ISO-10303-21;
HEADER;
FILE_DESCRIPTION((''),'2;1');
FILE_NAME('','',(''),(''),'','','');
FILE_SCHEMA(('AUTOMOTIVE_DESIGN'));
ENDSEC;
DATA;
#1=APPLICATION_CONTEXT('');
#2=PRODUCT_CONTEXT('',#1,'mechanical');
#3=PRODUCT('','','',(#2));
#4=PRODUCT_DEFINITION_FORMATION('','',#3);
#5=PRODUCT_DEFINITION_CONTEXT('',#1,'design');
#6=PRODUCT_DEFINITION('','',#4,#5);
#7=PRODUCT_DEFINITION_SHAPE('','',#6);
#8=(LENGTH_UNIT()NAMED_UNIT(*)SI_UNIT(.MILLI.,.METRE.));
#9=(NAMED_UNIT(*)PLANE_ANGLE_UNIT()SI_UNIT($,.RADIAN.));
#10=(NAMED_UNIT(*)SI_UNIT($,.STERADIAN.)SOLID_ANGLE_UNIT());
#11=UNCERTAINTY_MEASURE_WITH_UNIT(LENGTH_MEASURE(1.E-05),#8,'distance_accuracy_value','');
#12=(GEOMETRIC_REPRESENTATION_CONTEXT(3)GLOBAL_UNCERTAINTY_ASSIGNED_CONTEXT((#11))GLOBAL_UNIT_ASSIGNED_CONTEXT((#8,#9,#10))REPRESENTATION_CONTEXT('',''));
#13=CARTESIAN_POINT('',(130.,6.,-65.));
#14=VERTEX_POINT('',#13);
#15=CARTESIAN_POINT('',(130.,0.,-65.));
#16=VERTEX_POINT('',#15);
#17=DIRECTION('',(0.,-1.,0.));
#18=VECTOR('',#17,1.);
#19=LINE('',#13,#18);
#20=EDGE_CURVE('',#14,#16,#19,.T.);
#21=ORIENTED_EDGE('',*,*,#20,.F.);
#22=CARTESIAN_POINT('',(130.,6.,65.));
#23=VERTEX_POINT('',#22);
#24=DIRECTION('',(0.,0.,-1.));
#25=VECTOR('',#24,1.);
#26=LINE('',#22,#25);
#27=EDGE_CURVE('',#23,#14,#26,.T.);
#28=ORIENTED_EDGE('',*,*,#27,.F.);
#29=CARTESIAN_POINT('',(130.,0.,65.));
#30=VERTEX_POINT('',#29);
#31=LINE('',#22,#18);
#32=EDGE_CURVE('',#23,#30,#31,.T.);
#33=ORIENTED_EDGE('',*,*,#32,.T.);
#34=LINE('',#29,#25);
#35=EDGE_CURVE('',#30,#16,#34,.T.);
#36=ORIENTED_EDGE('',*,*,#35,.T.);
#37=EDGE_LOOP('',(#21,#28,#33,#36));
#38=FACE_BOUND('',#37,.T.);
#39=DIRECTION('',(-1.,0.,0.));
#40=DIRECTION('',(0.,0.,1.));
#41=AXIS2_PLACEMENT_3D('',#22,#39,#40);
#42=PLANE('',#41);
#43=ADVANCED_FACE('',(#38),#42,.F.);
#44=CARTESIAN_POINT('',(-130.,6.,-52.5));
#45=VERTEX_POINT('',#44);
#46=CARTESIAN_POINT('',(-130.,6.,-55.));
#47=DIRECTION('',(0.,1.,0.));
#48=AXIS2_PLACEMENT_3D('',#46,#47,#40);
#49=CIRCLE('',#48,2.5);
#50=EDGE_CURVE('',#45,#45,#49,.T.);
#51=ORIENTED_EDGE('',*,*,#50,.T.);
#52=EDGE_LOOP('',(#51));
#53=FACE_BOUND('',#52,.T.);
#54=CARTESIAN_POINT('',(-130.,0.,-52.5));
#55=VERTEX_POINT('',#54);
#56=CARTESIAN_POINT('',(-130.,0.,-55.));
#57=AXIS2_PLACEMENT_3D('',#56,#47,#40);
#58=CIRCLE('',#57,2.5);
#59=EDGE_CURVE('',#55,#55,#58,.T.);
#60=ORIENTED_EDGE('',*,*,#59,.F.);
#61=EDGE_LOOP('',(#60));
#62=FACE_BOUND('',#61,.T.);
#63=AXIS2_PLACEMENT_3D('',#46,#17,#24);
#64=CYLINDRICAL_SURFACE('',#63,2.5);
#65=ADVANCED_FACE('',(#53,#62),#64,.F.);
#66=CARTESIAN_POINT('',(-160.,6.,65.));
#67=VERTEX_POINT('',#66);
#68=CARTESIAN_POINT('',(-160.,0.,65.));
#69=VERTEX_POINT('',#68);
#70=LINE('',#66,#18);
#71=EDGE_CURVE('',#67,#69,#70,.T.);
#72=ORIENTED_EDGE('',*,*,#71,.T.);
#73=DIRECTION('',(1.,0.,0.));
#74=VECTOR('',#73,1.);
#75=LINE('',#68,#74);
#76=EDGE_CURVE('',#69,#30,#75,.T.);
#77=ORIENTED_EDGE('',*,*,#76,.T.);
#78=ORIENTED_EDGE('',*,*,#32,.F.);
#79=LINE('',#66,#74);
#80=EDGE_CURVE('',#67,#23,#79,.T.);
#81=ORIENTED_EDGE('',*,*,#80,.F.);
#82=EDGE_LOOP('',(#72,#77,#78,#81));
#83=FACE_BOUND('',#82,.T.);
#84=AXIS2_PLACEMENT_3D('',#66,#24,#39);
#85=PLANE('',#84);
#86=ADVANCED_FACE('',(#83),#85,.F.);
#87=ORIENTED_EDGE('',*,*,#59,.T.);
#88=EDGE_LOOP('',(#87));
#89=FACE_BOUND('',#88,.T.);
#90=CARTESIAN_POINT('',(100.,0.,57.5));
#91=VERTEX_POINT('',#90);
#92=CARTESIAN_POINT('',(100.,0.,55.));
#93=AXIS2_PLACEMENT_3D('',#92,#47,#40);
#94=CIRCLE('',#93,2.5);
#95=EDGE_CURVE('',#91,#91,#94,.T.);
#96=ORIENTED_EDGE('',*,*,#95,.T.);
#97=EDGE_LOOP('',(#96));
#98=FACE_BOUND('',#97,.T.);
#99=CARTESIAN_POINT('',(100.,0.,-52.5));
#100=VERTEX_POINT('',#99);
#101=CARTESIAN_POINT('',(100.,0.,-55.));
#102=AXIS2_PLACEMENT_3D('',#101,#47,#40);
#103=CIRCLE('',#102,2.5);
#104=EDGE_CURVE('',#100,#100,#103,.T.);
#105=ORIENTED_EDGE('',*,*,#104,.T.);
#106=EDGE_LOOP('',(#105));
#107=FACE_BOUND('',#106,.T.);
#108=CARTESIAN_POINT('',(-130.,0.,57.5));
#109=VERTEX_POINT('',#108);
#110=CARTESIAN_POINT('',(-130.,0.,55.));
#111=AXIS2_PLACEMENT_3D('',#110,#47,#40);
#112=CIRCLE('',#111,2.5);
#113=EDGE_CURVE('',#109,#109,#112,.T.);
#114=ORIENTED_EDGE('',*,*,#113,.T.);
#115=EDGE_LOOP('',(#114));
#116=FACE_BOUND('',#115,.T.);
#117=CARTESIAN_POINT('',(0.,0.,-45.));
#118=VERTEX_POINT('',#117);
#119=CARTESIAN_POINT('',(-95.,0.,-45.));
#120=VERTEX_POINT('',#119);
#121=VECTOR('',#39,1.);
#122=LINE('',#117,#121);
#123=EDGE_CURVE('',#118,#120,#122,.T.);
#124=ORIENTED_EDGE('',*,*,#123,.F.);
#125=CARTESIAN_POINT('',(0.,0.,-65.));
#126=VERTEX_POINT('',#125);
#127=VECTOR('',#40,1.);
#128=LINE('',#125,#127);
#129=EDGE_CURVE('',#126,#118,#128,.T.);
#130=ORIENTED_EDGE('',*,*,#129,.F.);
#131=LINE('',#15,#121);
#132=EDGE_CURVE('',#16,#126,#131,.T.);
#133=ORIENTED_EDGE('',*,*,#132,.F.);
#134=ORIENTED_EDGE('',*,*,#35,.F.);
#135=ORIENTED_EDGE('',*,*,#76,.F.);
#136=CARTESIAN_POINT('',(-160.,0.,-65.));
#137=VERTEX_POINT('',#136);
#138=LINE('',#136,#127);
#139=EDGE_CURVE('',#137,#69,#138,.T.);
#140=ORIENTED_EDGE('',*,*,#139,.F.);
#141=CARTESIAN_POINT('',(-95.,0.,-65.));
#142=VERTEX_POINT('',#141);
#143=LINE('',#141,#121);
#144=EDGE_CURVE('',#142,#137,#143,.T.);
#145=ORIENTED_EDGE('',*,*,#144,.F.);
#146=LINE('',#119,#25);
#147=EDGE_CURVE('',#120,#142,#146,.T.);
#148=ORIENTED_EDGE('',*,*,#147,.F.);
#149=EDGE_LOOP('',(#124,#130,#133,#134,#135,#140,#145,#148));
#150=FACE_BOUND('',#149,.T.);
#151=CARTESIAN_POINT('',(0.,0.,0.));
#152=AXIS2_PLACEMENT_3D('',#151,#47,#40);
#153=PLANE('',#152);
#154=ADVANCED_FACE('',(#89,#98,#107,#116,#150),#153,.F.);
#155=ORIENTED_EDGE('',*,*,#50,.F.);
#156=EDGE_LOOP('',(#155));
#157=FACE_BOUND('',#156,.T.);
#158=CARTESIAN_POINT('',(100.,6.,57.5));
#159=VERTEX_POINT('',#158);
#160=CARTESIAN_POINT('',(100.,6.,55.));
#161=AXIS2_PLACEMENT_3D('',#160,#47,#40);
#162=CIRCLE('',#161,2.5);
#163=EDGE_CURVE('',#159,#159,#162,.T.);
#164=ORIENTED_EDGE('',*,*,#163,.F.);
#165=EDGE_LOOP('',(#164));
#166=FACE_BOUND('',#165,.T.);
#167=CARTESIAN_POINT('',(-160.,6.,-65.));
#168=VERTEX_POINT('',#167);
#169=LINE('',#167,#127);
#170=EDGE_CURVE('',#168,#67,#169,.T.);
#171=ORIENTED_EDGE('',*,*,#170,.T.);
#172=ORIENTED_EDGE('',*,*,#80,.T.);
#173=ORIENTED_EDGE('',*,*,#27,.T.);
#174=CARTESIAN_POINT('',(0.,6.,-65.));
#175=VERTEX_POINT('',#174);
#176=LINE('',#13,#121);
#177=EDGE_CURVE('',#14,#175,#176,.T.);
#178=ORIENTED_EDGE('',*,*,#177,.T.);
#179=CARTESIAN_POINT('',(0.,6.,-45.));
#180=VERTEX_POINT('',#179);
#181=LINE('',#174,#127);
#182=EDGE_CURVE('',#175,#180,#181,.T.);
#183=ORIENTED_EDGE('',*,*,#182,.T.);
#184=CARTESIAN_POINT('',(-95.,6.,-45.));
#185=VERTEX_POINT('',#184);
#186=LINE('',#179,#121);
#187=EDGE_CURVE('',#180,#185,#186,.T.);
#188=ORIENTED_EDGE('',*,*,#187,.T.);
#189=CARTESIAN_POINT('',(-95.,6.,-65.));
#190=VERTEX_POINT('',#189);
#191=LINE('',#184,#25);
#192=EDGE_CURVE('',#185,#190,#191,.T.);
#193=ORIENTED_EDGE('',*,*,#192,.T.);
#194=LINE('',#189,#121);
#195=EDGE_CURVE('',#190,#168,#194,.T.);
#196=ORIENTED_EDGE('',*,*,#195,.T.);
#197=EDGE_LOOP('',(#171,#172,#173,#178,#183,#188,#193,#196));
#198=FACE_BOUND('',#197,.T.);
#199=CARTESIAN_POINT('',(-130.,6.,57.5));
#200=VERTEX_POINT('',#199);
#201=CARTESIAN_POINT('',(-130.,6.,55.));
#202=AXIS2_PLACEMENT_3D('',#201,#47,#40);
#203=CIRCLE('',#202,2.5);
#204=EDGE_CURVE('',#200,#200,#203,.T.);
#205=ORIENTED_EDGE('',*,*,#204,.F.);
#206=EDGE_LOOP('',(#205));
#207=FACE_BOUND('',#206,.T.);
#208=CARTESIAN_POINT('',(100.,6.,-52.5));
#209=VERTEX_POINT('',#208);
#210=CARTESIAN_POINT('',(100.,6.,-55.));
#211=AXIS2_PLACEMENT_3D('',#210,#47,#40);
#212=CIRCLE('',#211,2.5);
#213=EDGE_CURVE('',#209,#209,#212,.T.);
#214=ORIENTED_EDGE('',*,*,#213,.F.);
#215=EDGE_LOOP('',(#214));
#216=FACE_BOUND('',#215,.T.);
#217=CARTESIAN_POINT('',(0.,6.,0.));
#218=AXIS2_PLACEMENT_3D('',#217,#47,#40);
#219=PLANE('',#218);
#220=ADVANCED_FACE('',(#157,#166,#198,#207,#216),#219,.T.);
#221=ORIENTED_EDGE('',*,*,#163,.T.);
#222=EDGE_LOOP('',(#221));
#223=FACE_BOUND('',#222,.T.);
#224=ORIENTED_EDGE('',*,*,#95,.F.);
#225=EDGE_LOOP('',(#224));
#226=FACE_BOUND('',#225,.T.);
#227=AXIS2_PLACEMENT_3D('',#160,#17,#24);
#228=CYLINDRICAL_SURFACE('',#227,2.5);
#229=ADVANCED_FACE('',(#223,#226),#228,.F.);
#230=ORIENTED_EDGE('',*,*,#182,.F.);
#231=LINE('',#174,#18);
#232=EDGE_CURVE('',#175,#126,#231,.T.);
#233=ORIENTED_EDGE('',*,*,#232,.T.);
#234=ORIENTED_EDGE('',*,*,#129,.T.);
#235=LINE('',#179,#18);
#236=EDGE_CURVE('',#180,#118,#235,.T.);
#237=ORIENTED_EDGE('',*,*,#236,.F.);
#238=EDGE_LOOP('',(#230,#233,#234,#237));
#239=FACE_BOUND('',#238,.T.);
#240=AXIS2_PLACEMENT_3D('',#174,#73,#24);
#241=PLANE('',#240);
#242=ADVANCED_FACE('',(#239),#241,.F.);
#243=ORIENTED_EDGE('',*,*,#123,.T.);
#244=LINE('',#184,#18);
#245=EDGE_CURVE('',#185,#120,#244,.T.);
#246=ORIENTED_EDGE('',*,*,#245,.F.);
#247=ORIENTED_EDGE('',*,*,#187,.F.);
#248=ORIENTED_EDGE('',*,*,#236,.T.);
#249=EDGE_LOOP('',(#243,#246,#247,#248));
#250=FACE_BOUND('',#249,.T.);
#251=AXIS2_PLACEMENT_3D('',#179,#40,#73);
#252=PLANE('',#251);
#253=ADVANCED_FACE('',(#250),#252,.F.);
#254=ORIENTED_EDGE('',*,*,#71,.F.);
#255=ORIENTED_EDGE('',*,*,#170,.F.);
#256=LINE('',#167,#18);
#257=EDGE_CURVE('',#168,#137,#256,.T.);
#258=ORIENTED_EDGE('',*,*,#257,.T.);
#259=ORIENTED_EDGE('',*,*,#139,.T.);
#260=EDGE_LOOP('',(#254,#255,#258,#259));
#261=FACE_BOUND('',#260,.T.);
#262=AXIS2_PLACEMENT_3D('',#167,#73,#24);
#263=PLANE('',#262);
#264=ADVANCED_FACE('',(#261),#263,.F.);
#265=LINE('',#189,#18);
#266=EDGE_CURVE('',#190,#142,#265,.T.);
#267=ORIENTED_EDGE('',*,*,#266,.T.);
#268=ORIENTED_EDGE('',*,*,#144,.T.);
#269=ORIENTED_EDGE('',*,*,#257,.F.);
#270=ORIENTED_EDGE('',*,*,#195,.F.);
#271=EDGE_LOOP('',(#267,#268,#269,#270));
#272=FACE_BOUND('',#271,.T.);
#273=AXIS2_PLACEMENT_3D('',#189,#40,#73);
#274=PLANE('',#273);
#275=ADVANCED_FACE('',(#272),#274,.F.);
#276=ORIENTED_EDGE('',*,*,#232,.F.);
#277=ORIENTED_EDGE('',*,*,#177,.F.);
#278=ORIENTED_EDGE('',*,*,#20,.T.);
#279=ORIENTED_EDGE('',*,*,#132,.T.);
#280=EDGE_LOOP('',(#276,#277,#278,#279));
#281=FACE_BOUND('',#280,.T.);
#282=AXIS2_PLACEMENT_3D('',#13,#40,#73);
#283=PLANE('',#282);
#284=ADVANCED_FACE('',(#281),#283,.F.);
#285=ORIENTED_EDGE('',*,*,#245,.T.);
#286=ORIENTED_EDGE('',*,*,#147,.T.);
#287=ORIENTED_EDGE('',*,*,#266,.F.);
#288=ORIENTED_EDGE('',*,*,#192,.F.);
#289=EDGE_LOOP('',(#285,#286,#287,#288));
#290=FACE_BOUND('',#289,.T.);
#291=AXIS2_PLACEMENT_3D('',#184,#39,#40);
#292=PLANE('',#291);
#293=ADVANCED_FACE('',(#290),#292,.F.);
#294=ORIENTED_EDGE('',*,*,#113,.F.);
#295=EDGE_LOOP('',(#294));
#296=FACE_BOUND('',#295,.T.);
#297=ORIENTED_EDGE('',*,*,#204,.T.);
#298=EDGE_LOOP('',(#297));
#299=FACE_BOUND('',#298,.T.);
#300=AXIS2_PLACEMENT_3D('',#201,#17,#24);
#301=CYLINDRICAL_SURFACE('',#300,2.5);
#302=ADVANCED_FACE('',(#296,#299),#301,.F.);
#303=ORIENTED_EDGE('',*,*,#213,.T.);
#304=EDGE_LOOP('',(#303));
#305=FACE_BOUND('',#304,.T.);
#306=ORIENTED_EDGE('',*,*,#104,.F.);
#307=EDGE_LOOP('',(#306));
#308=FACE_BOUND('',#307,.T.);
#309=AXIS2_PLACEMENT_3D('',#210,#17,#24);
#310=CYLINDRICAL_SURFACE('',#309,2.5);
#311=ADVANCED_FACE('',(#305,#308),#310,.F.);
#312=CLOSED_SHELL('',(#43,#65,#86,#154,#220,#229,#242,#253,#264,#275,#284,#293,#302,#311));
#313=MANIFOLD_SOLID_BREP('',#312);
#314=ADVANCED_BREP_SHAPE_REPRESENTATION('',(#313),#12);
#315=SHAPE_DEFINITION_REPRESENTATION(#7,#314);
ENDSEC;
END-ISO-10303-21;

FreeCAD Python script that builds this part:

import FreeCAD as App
import Part
import Sketcher

V = App.Vector


def add_polygon(sketch, points):
    """Adds a closed chain of lines whose ends are joined by coincident constraints."""
    first, n = sketch.GeometryCount, len(points)
    for a, b in zip(points, points[1:] + points[:1]):
        sketch.addGeometry(Part.LineSegment(App.Vector(*a, 0), App.Vector(*b, 0)), False)
    for i in range(n):
        sketch.addConstraint(Sketcher.Constraint("Coincident", first + i, 2, first + (i + 1) % n, 1))

doc = App.newDocument("Part")
params = doc.addObject("Spreadsheet::Sheet", "Params")
for row, (alias, value) in enumerate([
    ("sketch1_diameter", "5 mm"),
    ("sketch1_width", "290 mm"),
    ("sketch1_width2", "130 mm"),
    ("sketch1_width3", "95 mm"),
    ("sketch1_height", "20 mm"),
    ("pad1_length", "6 mm"),
], start=1):
    params.set(f"A{row}", alias)
    params.set(f"B{row}", "=" + value)
    params.setAlias(f"B{row}", alias)

body = doc.addObject("PartDesign::Body", "Body")

# Sketch on XZ plane
sketch1 = body.newObject("Sketcher::SketchObject", "Sketch")
sketch1.AttachmentSupport = (doc.getObject("XZ_Plane"), [""])
sketch1.MapMode = "FlatFace"
add_polygon(sketch1, [(-160, 65), (130, 65), (130, -65), (0, -65), (0, -45), (-95, -45), (-95, -65), (-160, -65)])  # lines 0-7
sketch1.addGeometry(Part.Circle(V(-130, 55, 0), V(0, 0, 1), 2.5), False)  # 8
sketch1.addGeometry(Part.Circle(V(100, 55, 0), V(0, 0, 1), 2.5), False)  # 9
sketch1.addGeometry(Part.Circle(V(-130, -55, 0), V(0, 0, 1), 2.5), False)  # 10
sketch1.addGeometry(Part.Circle(V(100, -55, 0), V(0, 0, 1), 2.5), False)  # 11
sketch1.addConstraint([
    Sketcher.Constraint("Horizontal", 0),
    Sketcher.Constraint("Vertical", 1),
    Sketcher.Constraint("Horizontal", 2),
    Sketcher.Constraint("Vertical", 3),
    Sketcher.Constraint("Horizontal", 4),
    Sketcher.Constraint("Vertical", 5),
    Sketcher.Constraint("Horizontal", 6),
    Sketcher.Constraint("Vertical", 7),
    Sketcher.Constraint("Equal", 8, 9),
    Sketcher.Constraint("Equal", 9, 10),
    Sketcher.Constraint("Equal", 10, 11),
    Sketcher.Constraint("Symmetric", 8, 3, 10, 3, -1),
    Sketcher.Constraint("Symmetric", 9, 3, 11, 3, -1),
    Sketcher.Constraint("PointOnObject", 2, 2, -2),
    Sketcher.Constraint("Horizontal", 8, 3, 9, 3),
    Sketcher.Constraint("Horizontal", 2, 2, 5, 2),
    Sketcher.Constraint("Equal", 2, 1),
    Sketcher.Constraint("Diameter", 8, 5.0),
    Sketcher.Constraint("DistanceX", 0, 1, 0, 2, 290.0),
    Sketcher.Constraint("DistanceX", 2, 2, 2, 1, 130.0),
    Sketcher.Constraint("DistanceX", 4, 2, 4, 1, 95.0),
    Sketcher.Constraint("DistanceY", 3, 1, 3, 2, 20.0),
    Sketcher.Constraint("DistanceX", 8, 3, -1, 1, 130.0),
    Sketcher.Constraint("DistanceY", -1, 1, 8, 3, 55.0),
    Sketcher.Constraint("DistanceX", -1, 1, 9, 3, 100.0),
    Sketcher.Constraint("DistanceY", -1, 1, 0, 2, 65.0),
])
sketch1.setExpression("Constraints[25]", "Params.sketch1_diameter")
sketch1.setExpression("Constraints[26]", "Params.sketch1_width")
sketch1.setExpression("Constraints[27]", "Params.sketch1_width2")
sketch1.setExpression("Constraints[28]", "Params.sketch1_width3")
sketch1.setExpression("Constraints[29]", "Params.sketch1_height")
pad1 = body.newObject("PartDesign::Pad", "Pad")
pad1.Profile = sketch1
pad1.setExpression("Length", "Params.pad1_length")
pad1.Reversed = True

doc.recompute()
